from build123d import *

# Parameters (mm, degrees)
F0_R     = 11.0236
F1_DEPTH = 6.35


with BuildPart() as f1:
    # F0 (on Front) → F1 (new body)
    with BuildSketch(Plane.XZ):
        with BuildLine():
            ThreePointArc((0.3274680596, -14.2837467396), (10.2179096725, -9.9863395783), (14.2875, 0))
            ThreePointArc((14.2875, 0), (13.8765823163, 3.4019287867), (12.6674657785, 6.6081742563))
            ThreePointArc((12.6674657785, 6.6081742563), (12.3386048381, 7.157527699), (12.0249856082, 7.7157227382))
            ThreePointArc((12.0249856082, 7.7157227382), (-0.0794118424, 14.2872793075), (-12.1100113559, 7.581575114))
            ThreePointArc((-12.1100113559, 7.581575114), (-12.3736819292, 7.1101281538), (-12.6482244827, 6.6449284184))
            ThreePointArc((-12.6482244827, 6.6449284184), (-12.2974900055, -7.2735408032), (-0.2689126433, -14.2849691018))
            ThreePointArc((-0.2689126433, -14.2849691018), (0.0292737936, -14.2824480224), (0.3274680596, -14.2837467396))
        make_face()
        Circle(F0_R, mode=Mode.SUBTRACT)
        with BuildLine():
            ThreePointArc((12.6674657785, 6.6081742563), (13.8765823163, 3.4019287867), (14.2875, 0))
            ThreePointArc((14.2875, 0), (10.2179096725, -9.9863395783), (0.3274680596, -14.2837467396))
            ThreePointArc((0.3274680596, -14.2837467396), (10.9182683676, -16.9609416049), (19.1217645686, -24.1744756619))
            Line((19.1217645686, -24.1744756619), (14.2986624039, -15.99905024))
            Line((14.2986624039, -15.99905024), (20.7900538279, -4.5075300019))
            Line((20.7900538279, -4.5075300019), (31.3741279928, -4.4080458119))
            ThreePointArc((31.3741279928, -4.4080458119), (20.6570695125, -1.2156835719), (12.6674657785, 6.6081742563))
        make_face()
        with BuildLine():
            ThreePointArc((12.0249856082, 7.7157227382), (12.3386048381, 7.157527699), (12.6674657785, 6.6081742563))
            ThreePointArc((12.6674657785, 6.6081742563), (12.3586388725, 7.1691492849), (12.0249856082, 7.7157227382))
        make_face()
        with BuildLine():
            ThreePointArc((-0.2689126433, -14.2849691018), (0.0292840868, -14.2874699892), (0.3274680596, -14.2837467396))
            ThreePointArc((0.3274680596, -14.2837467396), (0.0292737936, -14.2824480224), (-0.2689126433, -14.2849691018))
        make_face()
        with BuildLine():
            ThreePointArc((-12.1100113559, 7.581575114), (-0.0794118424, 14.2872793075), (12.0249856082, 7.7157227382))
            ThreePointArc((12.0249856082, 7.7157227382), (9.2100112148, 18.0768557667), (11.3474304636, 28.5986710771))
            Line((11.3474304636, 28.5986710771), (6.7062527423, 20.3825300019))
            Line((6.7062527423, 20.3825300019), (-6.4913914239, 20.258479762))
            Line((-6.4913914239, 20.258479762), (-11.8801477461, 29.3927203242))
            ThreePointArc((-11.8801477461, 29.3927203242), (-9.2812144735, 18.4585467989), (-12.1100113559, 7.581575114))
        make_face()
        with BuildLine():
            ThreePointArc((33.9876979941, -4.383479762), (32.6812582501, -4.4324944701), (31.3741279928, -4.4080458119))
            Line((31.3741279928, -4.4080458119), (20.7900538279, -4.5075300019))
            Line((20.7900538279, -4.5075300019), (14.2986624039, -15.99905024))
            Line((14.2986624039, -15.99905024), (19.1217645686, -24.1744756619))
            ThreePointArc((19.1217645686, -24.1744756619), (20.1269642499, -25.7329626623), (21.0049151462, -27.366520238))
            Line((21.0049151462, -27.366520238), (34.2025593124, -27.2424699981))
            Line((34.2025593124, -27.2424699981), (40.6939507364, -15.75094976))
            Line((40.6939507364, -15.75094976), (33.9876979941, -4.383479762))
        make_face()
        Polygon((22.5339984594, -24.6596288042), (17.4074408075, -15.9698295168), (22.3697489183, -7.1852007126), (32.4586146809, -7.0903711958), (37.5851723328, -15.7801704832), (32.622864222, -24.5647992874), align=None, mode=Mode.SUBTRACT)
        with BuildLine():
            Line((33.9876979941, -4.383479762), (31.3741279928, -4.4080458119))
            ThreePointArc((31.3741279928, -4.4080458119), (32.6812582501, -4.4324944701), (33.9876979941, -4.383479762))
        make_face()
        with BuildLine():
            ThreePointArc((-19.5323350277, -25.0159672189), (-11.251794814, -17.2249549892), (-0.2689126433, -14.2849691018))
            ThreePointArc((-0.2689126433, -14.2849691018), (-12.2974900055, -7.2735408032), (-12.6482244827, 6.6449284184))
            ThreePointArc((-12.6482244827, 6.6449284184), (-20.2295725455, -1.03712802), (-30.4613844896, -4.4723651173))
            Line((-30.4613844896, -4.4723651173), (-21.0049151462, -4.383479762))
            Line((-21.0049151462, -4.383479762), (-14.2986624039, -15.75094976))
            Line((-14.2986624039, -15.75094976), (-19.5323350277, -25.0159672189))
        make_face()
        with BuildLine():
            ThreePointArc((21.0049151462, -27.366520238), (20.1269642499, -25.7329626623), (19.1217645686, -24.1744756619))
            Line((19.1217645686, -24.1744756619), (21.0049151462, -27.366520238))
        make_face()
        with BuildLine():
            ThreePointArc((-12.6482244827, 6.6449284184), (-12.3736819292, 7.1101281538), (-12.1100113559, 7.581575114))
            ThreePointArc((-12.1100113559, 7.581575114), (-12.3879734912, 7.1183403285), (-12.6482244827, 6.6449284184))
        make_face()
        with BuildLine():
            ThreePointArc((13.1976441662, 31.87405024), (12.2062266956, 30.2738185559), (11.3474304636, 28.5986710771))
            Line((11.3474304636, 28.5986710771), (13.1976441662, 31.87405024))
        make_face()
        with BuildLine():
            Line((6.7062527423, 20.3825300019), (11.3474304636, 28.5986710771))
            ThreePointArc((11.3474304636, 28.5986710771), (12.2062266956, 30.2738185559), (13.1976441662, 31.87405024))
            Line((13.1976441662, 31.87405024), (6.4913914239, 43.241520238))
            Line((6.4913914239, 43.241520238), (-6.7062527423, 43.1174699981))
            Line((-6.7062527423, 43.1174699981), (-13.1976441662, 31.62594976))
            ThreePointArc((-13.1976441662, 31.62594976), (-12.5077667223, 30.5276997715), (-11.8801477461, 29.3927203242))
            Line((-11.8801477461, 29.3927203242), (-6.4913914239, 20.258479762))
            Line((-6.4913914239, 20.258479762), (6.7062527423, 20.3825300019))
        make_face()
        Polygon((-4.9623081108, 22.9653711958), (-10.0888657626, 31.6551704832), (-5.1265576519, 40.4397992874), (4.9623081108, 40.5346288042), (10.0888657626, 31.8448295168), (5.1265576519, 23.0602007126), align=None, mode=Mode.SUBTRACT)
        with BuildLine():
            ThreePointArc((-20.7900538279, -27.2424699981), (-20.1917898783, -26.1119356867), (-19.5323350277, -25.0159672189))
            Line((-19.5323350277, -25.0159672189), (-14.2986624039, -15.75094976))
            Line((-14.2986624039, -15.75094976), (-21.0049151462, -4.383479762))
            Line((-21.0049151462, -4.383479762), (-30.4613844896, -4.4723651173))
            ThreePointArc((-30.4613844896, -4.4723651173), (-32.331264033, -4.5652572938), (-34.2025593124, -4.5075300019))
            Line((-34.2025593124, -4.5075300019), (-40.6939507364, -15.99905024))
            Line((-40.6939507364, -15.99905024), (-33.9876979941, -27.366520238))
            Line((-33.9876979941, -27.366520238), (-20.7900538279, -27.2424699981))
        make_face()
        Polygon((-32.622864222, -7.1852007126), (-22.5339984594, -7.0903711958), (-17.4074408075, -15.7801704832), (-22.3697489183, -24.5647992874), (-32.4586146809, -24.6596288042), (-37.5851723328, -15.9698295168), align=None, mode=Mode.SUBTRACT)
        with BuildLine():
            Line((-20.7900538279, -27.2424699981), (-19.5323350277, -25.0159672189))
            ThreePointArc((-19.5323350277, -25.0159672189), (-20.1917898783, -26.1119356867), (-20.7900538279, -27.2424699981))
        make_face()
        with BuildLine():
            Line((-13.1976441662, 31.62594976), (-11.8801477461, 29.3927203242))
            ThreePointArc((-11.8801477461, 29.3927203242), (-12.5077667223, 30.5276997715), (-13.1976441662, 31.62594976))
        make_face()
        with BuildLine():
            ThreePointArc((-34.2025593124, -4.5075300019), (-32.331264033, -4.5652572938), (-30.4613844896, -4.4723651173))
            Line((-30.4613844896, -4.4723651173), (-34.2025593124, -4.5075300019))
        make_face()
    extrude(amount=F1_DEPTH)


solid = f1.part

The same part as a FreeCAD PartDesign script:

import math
import FreeCAD as App
import Part
import Sketcher

V = App.Vector
Q = App.Units.Quantity

doc = App.newDocument("Part")
body = doc.addObject("PartDesign::Body", "Body")

# Sketch on XZ plane
sketch1 = doc.addObject("Sketcher::SketchObject", "Sketch")
body.addObject(sketch1)
sketch1.AttachmentSupport = (doc.XZ_Plane, [""])
sketch1.MapMode = "FlatFace"
sketch1.addGeometry(Part.ArcOfCircle(Part.Circle(V(0.076987, -37.561471, 0), V(0, 0, 1), 23.279072), math.radians(35.104232), math.radians(89.383491)), False)
sketch1.addGeometry(Part.LineSegment(V(19.121765, -24.174476, 0), V(21.004915, -27.36652, 0)), False)
sketch1.addGeometry(Part.LineSegment(V(21.004915, -27.36652, 0), V(34.202559, -27.24247, 0)), False)
sketch1.addGeometry(Part.LineSegment(V(34.202559, -27.24247, 0), V(40.693951, -15.75095, 0)), False)
sketch1.addGeometry(Part.LineSegment(V(40.693951, -15.75095, 0), V(33.987698, -4.38348, 0)), False)
sketch1.addGeometry(Part.LineSegment(V(33.987698, -4.38348, 0), V(31.374128, -4.408046, 0)), False)
sketch1.addGeometry(Part.ArcOfCircle(Part.Circle(V(32.462592, 18.831295, 0), V(0, 0, 1), 23.264817), math.radians(-148.305446), math.radians(-92.68161)), False)
sketch1.addGeometry(Part.ArcOfCircle(Part.Circle(V(0, 0, 0), V(0, 0, 1), 14.2875), math.radians(27.549475), math.radians(32.685891)), False)
sketch1.addGeometry(Part.ArcOfCircle(Part.Circle(V(32.462592, 18.831295, 0), V(0, 0, 1), 23.264817), math.radians(155.17585), math.radians(208.540812)), False)
sketch1.addGeometry(Part.LineSegment(V(11.34743, 28.598671, 0), V(13.197644, 31.87405, 0)), False)
sketch1.addGeometry(Part.LineSegment(V(13.197644, 31.87405, 0), V(6.491391, 43.24152, 0)), False)
sketch1.addGeometry(Part.LineSegment(V(6.491391, 43.24152, 0), V(-6.706253, 43.11747, 0)), False)
sketch1.addGeometry(Part.LineSegment(V(-6.706253, 43.11747, 0), V(-13.197644, 31.62595, 0)), False)
sketch1.addGeometry(Part.LineSegment(V(-13.197644, 31.62595, 0), V(-11.880148, 29.39272, 0)), False)
sketch1.addGeometry(Part.ArcOfCircle(Part.Circle(V(-32.549979, 18.703772, 0), V(0, 0, 1), 23.270057), math.radians(-28.552364), math.radians(27.34475)), False)
sketch1.addGeometry(Part.ArcOfCircle(Part.Circle(V(0, 0, 0), V(0, 0, 1), 14.2875), math.radians(147.951027), math.radians(152.284157)), False)
sketch1.addGeometry(Part.ArcOfCircle(Part.Circle(V(-32.549979, 18.703772, 0), V(0, 0, 1), 23.270057), math.radians(-84.85051), math.radians(-31.212452)), False)
sketch1.addGeometry(Part.LineSegment(V(-30.461384, -4.472365, 0), V(-34.202559, -4.50753, 0)), False)
sketch1.addGeometry(Part.LineSegment(V(-34.202559, -4.50753, 0), V(-40.693951, -15.99905, 0)), False)
sketch1.addGeometry(Part.LineSegment(V(-40.693951, -15.99905, 0), V(-33.987698, -27.36652, 0)), False)
sketch1.addGeometry(Part.LineSegment(V(-33.987698, -27.36652, 0), V(-20.790054, -27.24247, 0)), False)
sketch1.addGeometry(Part.LineSegment(V(-20.790054, -27.24247, 0), V(-19.532335, -25.015967, 0)), False)
sketch1.addGeometry(Part.ArcOfCircle(Part.Circle(V(0.076987, -37.561471, 0), V(0, 0, 1), 23.279072), math.radians(90.85138), math.radians(147.390008)), False)
sketch1.addGeometry(Part.ArcOfCircle(Part.Circle(V(0, 0, 0), V(0, 0, 1), 14.2875), math.radians(-91.078458), math.radians(-88.686672)), False)
sketch1.addGeometry(Part.LineSegment(V(-37.585172, -15.96983, 0), V(-32.622864, -7.185201, 0)), False)
sketch1.addGeometry(Part.LineSegment(V(-32.622864, -7.185201, 0), V(-22.533998, -7.090371, 0)), False)
sketch1.addGeometry(Part.LineSegment(V(-22.533998, -7.090371, 0), V(-17.407441, -15.78017, 0)), False)
sketch1.addGeometry(Part.LineSegment(V(-17.407441, -15.78017, 0), V(-22.369749, -24.564799, 0)), False)
sketch1.addGeometry(Part.LineSegment(V(-22.369749, -24.564799, 0), V(-32.458615, -24.659629, 0)), False)
sketch1.addGeometry(Part.LineSegment(V(-32.458615, -24.659629, 0), V(-37.585172, -15.96983, 0)), False)
sketch1.addGeometry(Part.LineSegment(V(32.622864, -24.564799, 0), V(22.533998, -24.659629, 0)), False)
sketch1.addGeometry(Part.LineSegment(V(22.533998, -24.659629, 0), V(17.407441, -15.96983, 0)), False)
sketch1.addGeometry(Part.LineSegment(V(17.407441, -15.96983, 0), V(22.369749, -7.185201, 0)), False)
sketch1.addGeometry(Part.LineSegment(V(22.369749, -7.185201, 0), V(32.458615, -7.090371, 0)), False)
sketch1.addGeometry(Part.LineSegment(V(32.458615, -7.090371, 0), V(37.585172, -15.78017, 0)), False)
sketch1.addGeometry(Part.LineSegment(V(37.585172, -15.78017, 0), V(32.622864, -24.564799, 0)), False)
sketch1.addGeometry(Part.Circle(V(0, 0, 0), V(0, 0, 1), 11.0236), False)
sketch1.addGeometry(Part.LineSegment(V(5.126558, 23.060201, 0), V(-4.962308, 22.965371, 0)), False)
sketch1.addGeometry(Part.LineSegment(V(-4.962308, 22.965371, 0), V(-10.088866, 31.65517, 0)), False)
sketch1.addGeometry(Part.LineSegment(V(-10.088866, 31.65517, 0), V(-5.126558, 40.439799, 0)), False)
sketch1.addGeometry(Part.LineSegment(V(-5.126558, 40.439799, 0), V(4.962308, 40.534629, 0)), False)
sketch1.addGeometry(Part.LineSegment(V(4.962308, 40.534629, 0), V(10.088866, 31.84483, 0)), False)
sketch1.addGeometry(Part.LineSegment(V(10.088866, 31.84483, 0), V(5.126558, 23.060201, 0)), False)
sketch1.addConstraint(Sketcher.Constraint("Coincident", 0, 1, 1, 1))
sketch1.addConstraint(Sketcher.Constraint("Coincident", 1, 2, 2, 1))
sketch1.addConstraint(Sketcher.Constraint("Coincident", 2, 2, 3, 1))
sketch1.addConstraint(Sketcher.Constraint("Coincident", 3, 2, 4, 1))
sketch1.addConstraint(Sketcher.Constraint("Coincident", 4, 2, 5, 1))
sketch1.addConstraint(Sketcher.Constraint("Coincident", 5, 2, 6, 2))
sketch1.addConstraint(Sketcher.Constraint("Coincident", 6, 1, 7, 1))
sketch1.addConstraint(Sketcher.Constraint("Coincident", 7, 2, 8, 2))
sketch1.addConstraint(Sketcher.Constraint("Coincident", 8, 1, 9, 1))
sketch1.addConstraint(Sketcher.Constraint("Coincident", 9, 2, 10, 1))
sketch1.addConstraint(Sketcher.Constraint("Coincident", 10, 2, 11, 1))
sketch1.addConstraint(Sketcher.Constraint("Coincident", 11, 2, 12, 1))
sketch1.addConstraint(Sketcher.Constraint("Coincident", 12, 2, 13, 1))
sketch1.addConstraint(Sketcher.Constraint("Coincident", 13, 2, 14, 2))
sketch1.addConstraint(Sketcher.Constraint("Coincident", 14, 1, 15, 1))
sketch1.addConstraint(Sketcher.Constraint("Coincident", 15, 2, 16, 2))
sketch1.addConstraint(Sketcher.Constraint("Coincident", 16, 1, 17, 1))
sketch1.addConstraint(Sketcher.Constraint("Coincident", 17, 2, 18, 1))
sketch1.addConstraint(Sketcher.Constraint("Coincident", 18, 2, 19, 1))
sketch1.addConstraint(Sketcher.Constraint("Coincident", 19, 2, 20, 1))
sketch1.addConstraint(Sketcher.Constraint("Coincident", 20, 2, 21, 1))
sketch1.addConstraint(Sketcher.Constraint("Coincident", 21, 2, 22, 2))
sketch1.addConstraint(Sketcher.Constraint("Coincident", 22, 1, 23, 1))
sketch1.addConstraint(Sketcher.Constraint("Coincident", 23, 2, 0, 2))
sketch1.addConstraint(Sketcher.Constraint("Coincident", 24, 2, 25, 1))
sketch1.addConstraint(Sketcher.Constraint("Coincident", 25, 2, 26, 1))
sketch1.addConstraint(Sketcher.Constraint("Coincident", 26, 2, 27, 1))
sketch1.addConstraint(Sketcher.Constraint("Coincident", 27, 2, 28, 1))
sketch1.addConstraint(Sketcher.Constraint("Coincident", 28, 2, 29, 1))
sketch1.addConstraint(Sketcher.Constraint("Coincident", 29, 2, 24, 1))
sketch1.addConstraint(Sketcher.Constraint("Coincident", 30, 2, 31, 1))
sketch1.addConstraint(Sketcher.Constraint("Coincident", 31, 2, 32, 1))
sketch1.addConstraint(Sketcher.Constraint("Coincident", 32, 2, 33, 1))
sketch1.addConstraint(Sketcher.Constraint("Coincident", 33, 2, 34, 1))
sketch1.addConstraint(Sketcher.Constraint("Coincident", 34, 2, 35, 1))
sketch1.addConstraint(Sketcher.Constraint("Coincident", 35, 2, 30, 1))
sketch1.addConstraint(Sketcher.Constraint("Coincident", 37, 2, 38, 1))
sketch1.addConstraint(Sketcher.Constraint("Coincident", 38, 2, 39, 1))
sketch1.addConstraint(Sketcher.Constraint("Coincident", 39, 2, 40, 1))
sketch1.addConstraint(Sketcher.Constraint("Coincident", 40, 2, 41, 1))
sketch1.addConstraint(Sketcher.Constraint("Coincident", 41, 2, 42, 1))
sketch1.addConstraint(Sketcher.Constraint("Coincident", 42, 2, 37, 1))
sketch1.addConstraint(Sketcher.Constraint("Coincident", 7, 3, -1, 1))
sketch1.addConstraint(Sketcher.Constraint("Coincident", 15, 3, -1, 1))
sketch1.addConstraint(Sketcher.Constraint("Coincident", 23, 3, -1, 1))
sketch1.addConstraint(Sketcher.Constraint("Coincident", 36, 3, -1, 1))
sketch1.addConstraint(Sketcher.Constraint("Coincident", 8, 3, 6, 3))
sketch1.addConstraint(Sketcher.Constraint("Coincident", 16, 3, 14, 3))
sketch1.addConstraint(Sketcher.Constraint("Coincident", 22, 3, 0, 3))
sketch1.addConstraint(Sketcher.Constraint("Diameter", 36, Q("0.868 in")))
sketch1.addConstraint(Sketcher.Constraint("Radius", 7, Q("0.5625 in")))
sketch1.addConstraint(Sketcher.Constraint("Radius", 15, Q("0.5625 in")))
sketch1.addConstraint(Sketcher.Constraint("Radius", 23, Q("0.5625 in")))
sketch1.addConstraint(Sketcher.Constraint("Radius", 0, 23.279072))
sketch1.addConstraint(Sketcher.Constraint("Radius", 22, 23.279072))
sketch1.addConstraint(Sketcher.Constraint("Radius", 6, 23.264817))
sketch1.addConstraint(Sketcher.Constraint("Radius", 8, 23.264817))
sketch1.addConstraint(Sketcher.Constraint("Radius", 14, 23.270057))
sketch1.addConstraint(Sketcher.Constraint("Radius", 16, 23.270057))
sketch1.addConstraint(Sketcher.Constraint("DistanceX", 19, 2, 28, 2, Q("0.0602001 in")))
sketch1.addConstraint(Sketcher.Constraint("DistanceX", 1, 2, 30, 2, Q("0.0602001 in")))
sketch1.addConstraint(Sketcher.Constraint("DistanceX", 33, 2, 4, 2, Q("0.0602001 in")))
sketch1.addConstraint(Sketcher.Constraint("DistanceX", 40, 2, 10, 2, Q("0.0602001 in")))
sketch1.addConstraint(Sketcher.Constraint("DistanceY", 24, 2, -1, 1, 7.185201))
sketch1.addConstraint(Sketcher.Constraint("DistanceX", 25, 2, -1, 1, 22.533998))
sketch1.addConstraint(Sketcher.Constraint("DistanceY", 27, 2, -1, 1, 24.564799))
sketch1.addConstraint(Sketcher.Constraint("DistanceX", -1, 1, 30, 2, 22.533998))
sketch1.addConstraint(Sketcher.Constraint("DistanceY", 32, 2, -1, 1, 7.185201))
sketch1.addConstraint(Sketcher.Constraint("DistanceY", 35, 2, -1, 1, 24.564799))
sketch1.addConstraint(Sketcher.Constraint("DistanceY", -1, 1, 39, 2, 40.439799))
sketch1.addConstraint(Sketcher.Constraint("DistanceY", -1, 1, 42, 2, 23.060201))
sketch1.addConstraint(Sketcher.Constraint("DistanceY", 0, 3, 2, 2, 10.319001))
sketch1.addConstraint(Sketcher.Constraint("DistanceX", 10, 2, 8, 3, 25.971201))
sketch1.addConstraint(Sketcher.Constraint("DistanceY", 8, 1, 11, 2, 14.518799))
sketch1.addConstraint(Sketcher.Constraint("DistanceY", 14, 3, 11, 2, 24.413698))
sketch1.addConstraint(Sketcher.Constraint("DistanceY", 13, 2, 10, 2, 13.8488))
sketch1.addConstraint(Sketcher.Constraint("DistanceY", 17, 2, 14, 3, 23.211302))
sketch1.addConstraint(Sketcher.Constraint("DistanceY", 0, 3, 20, 2, 10.319001))
sketch1.addConstraint(Sketcher.Constraint("DistanceY", 25, 2, 15, 2, 13.7353))
sketch1.addConstraint(Sketcher.Constraint("DistanceY", 26, 2, 25, 2, 8.689799))
sketch1.addConstraint(Sketcher.Constraint("DistanceY", 20, 2, 26, 2, 11.4623))
sketch1.addConstraint(Sketcher.Constraint("DistanceY", 26, 2, 22, 1, 1.495201))
sketch1.addConstraint(Sketcher.Constraint("DistanceY", 28, 2, 29, 2, 8.689799))
sketch1.addConstraint(Sketcher.Constraint("DistanceY", 29, 2, 17, 2, 11.4623))
sketch1.addConstraint(Sketcher.Constraint("DistanceY", 30, 2, 31, 2, 8.689799))
sketch1.addConstraint(Sketcher.Constraint("DistanceY", 34, 2, 33, 2, 8.689799))
sketch1.addConstraint(Sketcher.Constraint("DistanceY", 2, 2, 34, 2, 11.4623))
sketch1.addConstraint(Sketcher.Constraint("DistanceY", 37, 2, 8, 1, 5.6333))
sketch1.addConstraint(Sketcher.Constraint("DistanceY", 37, 2, 38, 2, 8.689799))
sketch1.addConstraint(Sketcher.Constraint("DistanceY", 41, 2, 40, 2, 8.689799))
sketch1.addConstraint(Sketcher.Constraint("Distance", 1, 3.706131))
sketch1.addConstraint(Sketcher.Constraint("Distance", 17, 3.74134))
sketch1.addConstraint(Sketcher.Constraint("Distance", 21, 2.55718))
sketch1.addConstraint(Sketcher.Constraint("Distance", 24, 10.089311))
sketch1.addConstraint(Sketcher.Constraint("Distance", 25, 10.089311))
sketch1.addConstraint(Sketcher.Constraint("Distance", 26, 10.089311))
sketch1.addConstraint(Sketcher.Constraint("Distance", 27, 10.089311))
sketch1.addConstraint(Sketcher.Constraint("Distance", 28, 10.089311))
sketch1.addConstraint(Sketcher.Constraint("Distance", 29, 10.089311))
sketch1.addConstraint(Sketcher.Constraint("Distance", 30, 10.089311))
sketch1.addConstraint(Sketcher.Constraint("Distance", 31, 10.089311))
sketch1.addConstraint(Sketcher.Constraint("Distance", 32, 10.089311))
sketch1.addConstraint(Sketcher.Constraint("Distance", 33, 10.089311))
sketch1.addConstraint(Sketcher.Constraint("Distance", 34, 10.089311))
sketch1.addConstraint(Sketcher.Constraint("Distance", 35, 10.089311))
sketch1.addConstraint(Sketcher.Constraint("Distance", 37, 10.089311))
sketch1.addConstraint(Sketcher.Constraint("Distance", 38, 10.089311))
sketch1.addConstraint(Sketcher.Constraint("Distance", 39, 10.089311))
sketch1.addConstraint(Sketcher.Constraint("Distance", 40, 10.089311))
sketch1.addConstraint(Sketcher.Constraint("Distance", 41, 10.089311))
sketch1.addConstraint(Sketcher.Constraint("Distance", 42, 10.089311))
sketch1.addConstraint(Sketcher.Constraint("DistanceY", 0, 3, -1, 1, 37.561471))
sketch1.addConstraint(Sketcher.Constraint("DistanceY", 1, 2, -1, 1, 27.36652))
sketch1.addConstraint(Sketcher.Constraint("DistanceX", -1, 1, 2, 2, 34.202559))
sketch1.addConstraint(Sketcher.Constraint("DistanceX", -1, 1, 3, 2, 40.693951))
sketch1.addConstraint(Sketcher.Constraint("DistanceY", 3, 2, -1, 1, 15.75095))
sketch1.addConstraint(Sketcher.Constraint("DistanceY", 4, 2, -1, 1, 4.38348))
sketch1.addConstraint(Sketcher.Constraint("DistanceX", -1, 1, 8, 1, 11.34743))
sketch1.addConstraint(Sketcher.Constraint("DistanceY", -1, 1, 9, 2, 31.87405))
sketch1.addConstraint(Sketcher.Constraint("DistanceX", -1, 1, 10, 2, 6.491391))
sketch1.addConstraint(Sketcher.Constraint("DistanceY", -1, 1, 10, 2, 43.24152))
sketch1.addConstraint(Sketcher.Constraint("DistanceY", -1, 1, 12, 2, 31.62595))
sketch1.addConstraint(Sketcher.Constraint("DistanceX", 17, 2, -1, 1, 34.202559))
sketch1.addConstraint(Sketcher.Constraint("DistanceX", 18, 2, -1, 1, 40.693951))
sketch1.addConstraint(Sketcher.Constraint("DistanceY", 18, 2, -1, 1, 15.99905))
sketch1.addConstraint(Sketcher.Constraint("DistanceY", 19, 2, -1, 1, 27.36652))
sketch1.addConstraint(Sketcher.Constraint("DistanceX", 5, 2, 4, 2, 2.61357))
sketch1.addConstraint(Sketcher.Constraint("DistanceX", 7, 2, 9, 2, 1.172659))
sketch1.addConstraint(Sketcher.Constraint("DistanceX", 12, 2, 11, 2, 6.491391))
sketch1.addConstraint(Sketcher.Constraint("DistanceX", 20, 2, 0, 3, 20.867041))
sketch1.addConstraint(Sketcher.Constraint("DistanceX", 12, 2, 38, 2, 3.108778))
pad1 = doc.addObject("PartDesign::Pad", "Pad")
body.addObject(pad1)
pad1.Profile = sketch1
pad1.Length = Q("0.25 in")

doc.recompute()
